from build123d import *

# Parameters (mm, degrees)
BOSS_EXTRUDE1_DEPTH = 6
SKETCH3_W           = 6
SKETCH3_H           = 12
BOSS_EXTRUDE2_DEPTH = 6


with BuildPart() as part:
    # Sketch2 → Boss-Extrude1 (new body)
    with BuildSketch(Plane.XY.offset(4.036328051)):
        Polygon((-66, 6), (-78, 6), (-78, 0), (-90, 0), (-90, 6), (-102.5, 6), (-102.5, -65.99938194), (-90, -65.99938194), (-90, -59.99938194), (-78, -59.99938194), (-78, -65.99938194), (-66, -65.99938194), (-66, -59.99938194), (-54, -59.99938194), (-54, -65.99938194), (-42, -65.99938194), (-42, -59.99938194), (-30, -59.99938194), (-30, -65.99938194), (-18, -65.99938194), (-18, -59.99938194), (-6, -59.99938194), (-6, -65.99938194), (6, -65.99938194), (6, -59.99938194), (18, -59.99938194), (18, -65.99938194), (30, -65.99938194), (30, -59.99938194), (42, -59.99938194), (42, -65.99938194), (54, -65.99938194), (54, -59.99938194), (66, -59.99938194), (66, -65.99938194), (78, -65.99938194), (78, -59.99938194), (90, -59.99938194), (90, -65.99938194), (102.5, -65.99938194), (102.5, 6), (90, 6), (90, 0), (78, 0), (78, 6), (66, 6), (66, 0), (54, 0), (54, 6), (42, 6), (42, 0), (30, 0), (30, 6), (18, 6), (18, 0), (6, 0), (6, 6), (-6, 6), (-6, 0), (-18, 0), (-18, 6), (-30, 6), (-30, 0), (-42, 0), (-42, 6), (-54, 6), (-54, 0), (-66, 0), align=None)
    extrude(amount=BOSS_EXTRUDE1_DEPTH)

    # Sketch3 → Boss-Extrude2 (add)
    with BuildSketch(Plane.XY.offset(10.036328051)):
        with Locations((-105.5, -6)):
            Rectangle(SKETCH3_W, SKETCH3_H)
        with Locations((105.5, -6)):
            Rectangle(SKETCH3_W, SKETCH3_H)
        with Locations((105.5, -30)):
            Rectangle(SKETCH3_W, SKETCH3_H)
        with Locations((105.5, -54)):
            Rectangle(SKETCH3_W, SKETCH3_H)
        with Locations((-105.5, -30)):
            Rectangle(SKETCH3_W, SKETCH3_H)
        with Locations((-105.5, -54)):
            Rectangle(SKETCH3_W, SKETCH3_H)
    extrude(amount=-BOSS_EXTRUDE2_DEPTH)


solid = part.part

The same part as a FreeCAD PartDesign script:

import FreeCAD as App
import Part
import Sketcher
Q = App.Units.Quantity

doc = App.newDocument("Part")
body = doc.addObject("PartDesign::Body", "Body")

# Sketch on XY plane
sketch1 = body.newObject("Sketcher::SketchObject", "Sketch")
sketch1.AttachmentSupport = (doc.getObject("XY_Plane"), [""])
sketch1.MapMode = "FlatFace"
sketch1.AttachmentOffset = App.Placement(App.Vector(0, 0, 4.036328), App.Rotation())
sketch1.addGeometry([
    Part.LineSegment(App.Vector(-66, 6, 0), App.Vector(-78, 6, 0)),  # 0
    Part.LineSegment(App.Vector(-78, 6, 0), App.Vector(-78, 0, 0)),  # 1
    Part.LineSegment(App.Vector(-78, 0, 0), App.Vector(-90, 0, 0)),  # 2
    Part.LineSegment(App.Vector(-90, 0, 0), App.Vector(-90, 6, 0)),  # 3
    Part.LineSegment(App.Vector(-90, 6, 0), App.Vector(-102, 6, 0)),  # 4
    Part.LineSegment(App.Vector(-102, 6, 0), App.Vector(-102, -66, 0)),  # 5
    Part.LineSegment(App.Vector(-102, -66, 0), App.Vector(-90, -66, 0)),  # 6
    Part.LineSegment(App.Vector(-90, -66, 0), App.Vector(-90, -60, 0)),  # 7
    Part.LineSegment(App.Vector(-90, -60, 0), App.Vector(-78, -60, 0)),  # 8
    Part.LineSegment(App.Vector(-78, -60, 0), App.Vector(-78, -66, 0)),  # 9
    Part.LineSegment(App.Vector(-78, -66, 0), App.Vector(-66, -66, 0)),  # 10
    Part.LineSegment(App.Vector(-66, -66, 0), App.Vector(-66, -60, 0)),  # 11
    Part.LineSegment(App.Vector(-66, -60, 0), App.Vector(-54, -60, 0)),  # 12
    Part.LineSegment(App.Vector(-54, -60, 0), App.Vector(-54, -66, 0)),  # 13
    Part.LineSegment(App.Vector(-54, -66, 0), App.Vector(-42, -66, 0)),  # 14
    Part.LineSegment(App.Vector(-42, -66, 0), App.Vector(-42, -60, 0)),  # 15
    Part.LineSegment(App.Vector(-42, -60, 0), App.Vector(-30, -60, 0)),  # 16
    Part.LineSegment(App.Vector(-30, -60, 0), App.Vector(-30, -66, 0)),  # 17
    Part.LineSegment(App.Vector(-30, -66, 0), App.Vector(-18, -66, 0)),  # 18
    Part.LineSegment(App.Vector(-18, -66, 0), App.Vector(-18, -60, 0)),  # 19
    Part.LineSegment(App.Vector(-18, -60, 0), App.Vector(-6, -60, 0)),  # 20
    Part.LineSegment(App.Vector(-6, -60, 0), App.Vector(-6, -66, 0)),  # 21
    Part.LineSegment(App.Vector(-6, -66, 0), App.Vector(6, -66, 0)),  # 22
    Part.LineSegment(App.Vector(6, -66, 0), App.Vector(6, -60, 0)),  # 23
    Part.LineSegment(App.Vector(6, -60, 0), App.Vector(18, -60, 0)),  # 24
    Part.LineSegment(App.Vector(18, -60, 0), App.Vector(18, -66, 0)),  # 25
    Part.LineSegment(App.Vector(18, -66, 0), App.Vector(30, -66, 0)),  # 26
    Part.LineSegment(App.Vector(30, -66, 0), App.Vector(30, -60, 0)),  # 27
    Part.LineSegment(App.Vector(30, -60, 0), App.Vector(42, -60, 0)),  # 28
    Part.LineSegment(App.Vector(42, -60, 0), App.Vector(42, -66, 0)),  # 29
    Part.LineSegment(App.Vector(42, -66, 0), App.Vector(54, -66, 0)),  # 30
    Part.LineSegment(App.Vector(54, -66, 0), App.Vector(54, -60, 0)),  # 31
    Part.LineSegment(App.Vector(54, -60, 0), App.Vector(66, -60, 0)),  # 32
    Part.LineSegment(App.Vector(66, -60, 0), App.Vector(66, -66, 0)),  # 33
    Part.LineSegment(App.Vector(66, -66, 0), App.Vector(78, -66, 0)),  # 34
    Part.LineSegment(App.Vector(78, -66, 0), App.Vector(78, -60, 0)),  # 35
    Part.LineSegment(App.Vector(78, -60, 0), App.Vector(90, -60, 0)),  # 36
    Part.LineSegment(App.Vector(90, -60, 0), App.Vector(90, -66, 0)),  # 37
    Part.LineSegment(App.Vector(90, -66, 0), App.Vector(102, -66, 0)),  # 38
    Part.LineSegment(App.Vector(102, -66, 0), App.Vector(102, 6, 0)),  # 39
    Part.LineSegment(App.Vector(102, 6, 0), App.Vector(90, 6, 0)),  # 40
    Part.LineSegment(App.Vector(90, 6, 0), App.Vector(90, 0, 0)),  # 41
    Part.LineSegment(App.Vector(90, 0, 0), App.Vector(78, 0, 0)),  # 42
    Part.LineSegment(App.Vector(78, 0, 0), App.Vector(78, 6, 0)),  # 43
    Part.LineSegment(App.Vector(78, 6, 0), App.Vector(66, 6, 0)),  # 44
    Part.LineSegment(App.Vector(66, 6, 0), App.Vector(66, 0, 0)),  # 45
    Part.LineSegment(App.Vector(66, 0, 0), App.Vector(54, 0, 0)),  # 46
    Part.LineSegment(App.Vector(54, 0, 0), App.Vector(54, 6, 0)),  # 47
    Part.LineSegment(App.Vector(54, 6, 0), App.Vector(42, 6, 0)),  # 48
    Part.LineSegment(App.Vector(42, 6, 0), App.Vector(42, 0, 0)),  # 49
    Part.LineSegment(App.Vector(42, 0, 0), App.Vector(30, 0, 0)),  # 50
    Part.LineSegment(App.Vector(30, 0, 0), App.Vector(30, 6, 0)),  # 51
    Part.LineSegment(App.Vector(30, 6, 0), App.Vector(18, 6, 0)),  # 52
    Part.LineSegment(App.Vector(18, 6, 0), App.Vector(18, 0, 0)),  # 53
    Part.LineSegment(App.Vector(18, 0, 0), App.Vector(6, 0, 0)),  # 54
    Part.LineSegment(App.Vector(6, 0, 0), App.Vector(6, 6, 0)),  # 55
    Part.LineSegment(App.Vector(6, 6, 0), App.Vector(-6, 6, 0)),  # 56
    Part.LineSegment(App.Vector(-6, 6, 0), App.Vector(-6, 0, 0)),  # 57
    Part.LineSegment(App.Vector(-6, 0, 0), App.Vector(-18, 0, 0)),  # 58
    Part.LineSegment(App.Vector(-18, 0, 0), App.Vector(-18, 6, 0)),  # 59
    Part.LineSegment(App.Vector(-18, 6, 0), App.Vector(-30, 6, 0)),  # 60
    Part.LineSegment(App.Vector(-30, 6, 0), App.Vector(-30, 0, 0)),  # 61
    Part.LineSegment(App.Vector(-30, 0, 0), App.Vector(-42, 0, 0)),  # 62
    Part.LineSegment(App.Vector(-42, 0, 0), App.Vector(-42, 6, 0)),  # 63
    Part.LineSegment(App.Vector(-42, 6, 0), App.Vector(-54, 6, 0)),  # 64
    Part.LineSegment(App.Vector(-54, 6, 0), App.Vector(-54, 0, 0)),  # 65
    Part.LineSegment(App.Vector(-54, 0, 0), App.Vector(-66, 0, 0)),  # 66
    Part.LineSegment(App.Vector(-66, 0, 0), App.Vector(-66, 6, 0)),  # 67
], False)
sketch1.addConstraint([
    Sketcher.Constraint("Coincident", 0, 2, 1, 1),
    Sketcher.Constraint("Coincident", 1, 2, 2, 1),
    Sketcher.Constraint("Coincident", 2, 2, 3, 1),
    Sketcher.Constraint("Coincident", 3, 2, 4, 1),
    Sketcher.Constraint("Coincident", 4, 2, 5, 1),
    Sketcher.Constraint("Coincident", 5, 2, 6, 1),
    Sketcher.Constraint("Coincident", 6, 2, 7, 1),
    Sketcher.Constraint("Coincident", 7, 2, 8, 1),
    Sketcher.Constraint("Coincident", 8, 2, 9, 1),
    Sketcher.Constraint("Coincident", 9, 2, 10, 1),
    Sketcher.Constraint("Coincident", 10, 2, 11, 1),
    Sketcher.Constraint("Coincident", 11, 2, 12, 1),
    Sketcher.Constraint("Coincident", 12, 2, 13, 1),
    Sketcher.Constraint("Coincident", 13, 2, 14, 1),
    Sketcher.Constraint("Coincident", 14, 2, 15, 1),
    Sketcher.Constraint("Coincident", 15, 2, 16, 1),
    Sketcher.Constraint("Coincident", 16, 2, 17, 1),
    Sketcher.Constraint("Coincident", 17, 2, 18, 1),
    Sketcher.Constraint("Coincident", 18, 2, 19, 1),
    Sketcher.Constraint("Coincident", 19, 2, 20, 1),
    Sketcher.Constraint("Coincident", 20, 2, 21, 1),
    Sketcher.Constraint("Coincident", 21, 2, 22, 1),
    Sketcher.Constraint("Coincident", 22, 2, 23, 1),
    Sketcher.Constraint("Coincident", 23, 2, 24, 1),
    Sketcher.Constraint("Coincident", 24, 2, 25, 1),
    Sketcher.Constraint("Coincident", 25, 2, 26, 1),
    Sketcher.Constraint("Coincident", 26, 2, 27, 1),
    Sketcher.Constraint("Coincident", 27, 2, 28, 1),
    Sketcher.Constraint("Coincident", 28, 2, 29, 1),
    Sketcher.Constraint("Coincident", 29, 2, 30, 1),
    Sketcher.Constraint("Coincident", 30, 2, 31, 1),
    Sketcher.Constraint("Coincident", 31, 2, 32, 1),
    Sketcher.Constraint("Coincident", 32, 2, 33, 1),
    Sketcher.Constraint("Coincident", 33, 2, 34, 1),
    Sketcher.Constraint("Coincident", 34, 2, 35, 1),
    Sketcher.Constraint("Coincident", 35, 2, 36, 1),
    Sketcher.Constraint("Coincident", 36, 2, 37, 1),
    Sketcher.Constraint("Coincident", 37, 2, 38, 1),
    Sketcher.Constraint("Coincident", 38, 2, 39, 1),
    Sketcher.Constraint("Coincident", 39, 2, 40, 1),
    Sketcher.Constraint("Coincident", 40, 2, 41, 1),
    Sketcher.Constraint("Coincident", 41, 2, 42, 1),
    Sketcher.Constraint("Coincident", 42, 2, 43, 1),
    Sketcher.Constraint("Coincident", 43, 2, 44, 1),
    Sketcher.Constraint("Coincident", 44, 2, 45, 1),
    Sketcher.Constraint("Coincident", 45, 2, 46, 1),
    Sketcher.Constraint("Coincident", 46, 2, 47, 1),
    Sketcher.Constraint("Coincident", 47, 2, 48, 1),
    Sketcher.Constraint("Coincident", 48, 2, 49, 1),
    Sketcher.Constraint("Coincident", 49, 2, 50, 1),
    Sketcher.Constraint("Coincident", 50, 2, 51, 1),
    Sketcher.Constraint("Coincident", 51, 2, 52, 1),
    Sketcher.Constraint("Coincident", 52, 2, 53, 1),
    Sketcher.Constraint("Coincident", 53, 2, 54, 1),
    Sketcher.Constraint("Coincident", 54, 2, 55, 1),
    Sketcher.Constraint("Coincident", 55, 2, 56, 1),
    Sketcher.Constraint("Coincident", 56, 2, 57, 1),
    Sketcher.Constraint("Coincident", 57, 2, 58, 1),
    Sketcher.Constraint("Coincident", 58, 2, 59, 1),
    Sketcher.Constraint("Coincident", 59, 2, 60, 1),
    Sketcher.Constraint("Coincident", 60, 2, 61, 1),
    Sketcher.Constraint("Coincident", 61, 2, 62, 1),
    Sketcher.Constraint("Coincident", 62, 2, 63, 1),
    Sketcher.Constraint("Coincident", 63, 2, 64, 1),
    Sketcher.Constraint("Coincident", 64, 2, 65, 1),
    Sketcher.Constraint("Coincident", 65, 2, 66, 1),
    Sketcher.Constraint("Coincident", 66, 2, 67, 1),
    Sketcher.Constraint("Coincident", 67, 2, 0, 1),
    Sketcher.Constraint("Horizontal", 0),
    Sketcher.Constraint("Vertical", 1),
    Sketcher.Constraint("Horizontal", 2),
    Sketcher.Constraint("Vertical", 3),
    Sketcher.Constraint("Horizontal", 4),
    Sketcher.Constraint("Vertical", 5),
    Sketcher.Constraint("Horizontal", 6),
    Sketcher.Constraint("Vertical", 7),
    Sketcher.Constraint("Horizontal", 8),
    Sketcher.Constraint("Vertical", 9),
    Sketcher.Constraint("Horizontal", 10),
    Sketcher.Constraint("Vertical", 11),
    Sketcher.Constraint("Horizontal", 12),
    Sketcher.Constraint("Vertical", 13),
    Sketcher.Constraint("Horizontal", 14),
    Sketcher.Constraint("Vertical", 15),
    Sketcher.Constraint("Horizontal", 16),
    Sketcher.Constraint("Vertical", 17),
    Sketcher.Constraint("Horizontal", 18),
    Sketcher.Constraint("Vertical", 19),
    Sketcher.Constraint("Horizontal", 20),
    Sketcher.Constraint("Vertical", 21),
    Sketcher.Constraint("Horizontal", 22),
    Sketcher.Constraint("Vertical", 23),
    Sketcher.Constraint("Horizontal", 24),
    Sketcher.Constraint("Vertical", 25),
    Sketcher.Constraint("Horizontal", 26),
    Sketcher.Constraint("Vertical", 27),
    Sketcher.Constraint("Horizontal", 28),
    Sketcher.Constraint("Vertical", 29),
    Sketcher.Constraint("Horizontal", 30),
    Sketcher.Constraint("Vertical", 31),
    Sketcher.Constraint("Horizontal", 32),
    Sketcher.Constraint("Vertical", 33),
    Sketcher.Constraint("Horizontal", 34),
    Sketcher.Constraint("Vertical", 35),
    Sketcher.Constraint("Horizontal", 36),
    Sketcher.Constraint("Vertical", 37),
    Sketcher.Constraint("Horizontal", 38),
    Sketcher.Constraint("Vertical", 39),
    Sketcher.Constraint("Horizontal", 40),
    Sketcher.Constraint("Vertical", 41),
    Sketcher.Constraint("Horizontal", 42),
    Sketcher.Constraint("Vertical", 43),
    Sketcher.Constraint("Horizontal", 44),
    Sketcher.Constraint("Vertical", 45),
    Sketcher.Constraint("Horizontal", 46),
    Sketcher.Constraint("Vertical", 47),
    Sketcher.Constraint("Horizontal", 48),
    Sketcher.Constraint("Vertical", 49),
    Sketcher.Constraint("Horizontal", 50),
    Sketcher.Constraint("Vertical", 51),
    Sketcher.Constraint("Horizontal", 52),
    Sketcher.Constraint("Vertical", 53),
    Sketcher.Constraint("Horizontal", 54),
    Sketcher.Constraint("Vertical", 55),
    Sketcher.Constraint("Horizontal", 56),
    Sketcher.Constraint("Vertical", 57),
    Sketcher.Constraint("Horizontal", 58),
    Sketcher.Constraint("Vertical", 59),
    Sketcher.Constraint("Horizontal", 60),
    Sketcher.Constraint("Vertical", 61),
    Sketcher.Constraint("Horizontal", 62),
    Sketcher.Constraint("Vertical", 63),
    Sketcher.Constraint("Horizontal", 64),
    Sketcher.Constraint("Vertical", 65),
    Sketcher.Constraint("Horizontal", 66),
    Sketcher.Constraint("Vertical", 67),
    Sketcher.Constraint("Symmetric", 2, 2, 41, 2, -1, 1),
    Sketcher.Constraint("Symmetric", 54, 2, 57, 2, -1, 1),
    Sketcher.Constraint("Symmetric", 50, 2, 61, 2, -1, 1),
    Sketcher.Constraint("Symmetric", 46, 2, 65, 2, -1, 1),
    Sketcher.Constraint("Symmetric", 20, 2, 23, 2, -2),
    Sketcher.Constraint("Symmetric", 18, 2, 25, 2, -2),
    Sketcher.Constraint("Symmetric", 16, 2, 27, 2, -2),
    Sketcher.Constraint("Symmetric", 14, 2, 29, 2, -2),
    Sketcher.Constraint("Symmetric", 12, 2, 31, 2, -2),
    Sketcher.Constraint("Symmetric", 10, 2, 33, 2, -2),
    Sketcher.Constraint("Symmetric", 8, 2, 35, 2, -2),
    Sketcher.Constraint("Symmetric", 6, 2, 37, 2, -2),
    Sketcher.Constraint("Symmetric", 4, 2, 39, 2, -2),
    Sketcher.Constraint("Symmetric", 1, 2, 42, 2, -2),
    Sketcher.Constraint("Symmetric", 53, 2, 58, 2, -2),
    Sketcher.Constraint("Symmetric", 49, 2, 62, 2, -2),
    Sketcher.Constraint("Symmetric", 45, 2, 66, 2, -2),
    Sketcher.Constraint("Horizontal", 0, 2, 3, 2),
    Sketcher.Constraint("Horizontal", 6, 2, 9, 2),
    Sketcher.Constraint("Horizontal", 8, 2, 11, 2),
    Sketcher.Constraint("Horizontal", 10, 2, 13, 2),
    Sketcher.Constraint("Horizontal", 12, 2, 15, 2),
    Sketcher.Constraint("Horizontal", 14, 2, 17, 2),
    Sketcher.Constraint("Horizontal", 16, 2, 19, 2),
    Sketcher.Constraint("Horizontal", 18, 2, 21, 2),
    Sketcher.Constraint("Horizontal", 40, 2, 43, 2),
    Sketcher.Constraint("Horizontal", 44, 2, 47, 2),
    Sketcher.Constraint("Horizontal", 48, 2, 51, 2),
    Sketcher.Constraint("Horizontal", 52, 2, 55, 2),
    Sketcher.Constraint("Horizontal", 56, 2, 59, 2),
    Sketcher.Constraint("Horizontal", 60, 2, 63, 2),
    Sketcher.Constraint("Vertical", 3, 2, 6, 2),
    Sketcher.Constraint("Vertical", 1, 2, 8, 2),
    Sketcher.Constraint("Vertical", 33, 2, 44, 2),
    Sketcher.Constraint("Vertical", 31, 2, 46, 2),
    Sketcher.Constraint("Vertical", 29, 2, 48, 2),
    Sketcher.Constraint("Vertical", 27, 2, 50, 2),
    Sketcher.Constraint("Vertical", 25, 2, 52, 2),
    Sketcher.Constraint("Vertical", 23, 2, 54, 2),
    Sketcher.Constraint("Equal", 0, 2),
    Sketcher.Constraint("Equal", 10, 12),
    Sketcher.Constraint("Equal", 12, 14),
    Sketcher.Constraint("Equal", 14, 16),
    Sketcher.Constraint("Equal", 16, 18),
    Sketcher.Constraint("Equal", 18, 20),
    Sketcher.Constraint("Equal", 20, 22),
    Sketcher.Constraint("Equal", 3, 7),
    Sketcher.Constraint("DistanceX", 0, 2, 0, 1, Q("12 mm")),
    Sketcher.Constraint("DistanceY", 1, 2, 1, 1, Q("6 mm")),
    Sketcher.Constraint("DistanceX", 4, 2, 4, 1, Q("12.5 mm")),
    Sketcher.Constraint("DistanceY", 5, 2, 5, 1, Q("71.999382 mm")),
])
pad1 = body.newObject("PartDesign::Pad", "Pad")
pad1.Profile = sketch1
pad1.Length = 6

# Sketch on XY plane
sketch2 = body.newObject("Sketcher::SketchObject", "Sketch001")
sketch2.AttachmentSupport = (doc.getObject("XY_Plane"), [""])
sketch2.MapMode = "FlatFace"
sketch2.AttachmentOffset = App.Placement(App.Vector(0, 0, 10.036328), App.Rotation())
sketch2.addGeometry([
    Part.LineSegment(App.Vector(-108, 0, 0), App.Vector(-108, -12, 0)),  # 0
    Part.LineSegment(App.Vector(-108, -12, 0), App.Vector(-102, -12, 0)),  # 1
    Part.LineSegment(App.Vector(-102, -12, 0), App.Vector(-102, 0, 0)),  # 2
    Part.LineSegment(App.Vector(-102, 0, 0), App.Vector(-108, 0, 0)),  # 3
    Part.LineSegment(App.Vector(102, 0, 0), App.Vector(102, -12, 0)),  # 4
    Part.LineSegment(App.Vector(102, -12, 0), App.Vector(108, -12, 0)),  # 5
    Part.LineSegment(App.Vector(108, -12, 0), App.Vector(108, 0, 0)),  # 6
    Part.LineSegment(App.Vector(108, 0, 0), App.Vector(102, 0, 0)),  # 7
    Part.LineSegment(App.Vector(102, -24, 0), App.Vector(102, -36, 0)),  # 8
    Part.LineSegment(App.Vector(102, -36, 0), App.Vector(108, -36, 0)),  # 9
    Part.LineSegment(App.Vector(108, -36, 0), App.Vector(108, -24, 0)),  # 10
    Part.LineSegment(App.Vector(108, -24, 0), App.Vector(102, -24, 0)),  # 11
    Part.LineSegment(App.Vector(102, -48, 0), App.Vector(102, -60, 0)),  # 12
    Part.LineSegment(App.Vector(102, -60, 0), App.Vector(108, -60, 0)),  # 13
    Part.LineSegment(App.Vector(108, -60, 0), App.Vector(108, -48, 0)),  # 14
    Part.LineSegment(App.Vector(108, -48, 0), App.Vector(102, -48, 0)),  # 15
    Part.LineSegment(App.Vector(-108, -24, 0), App.Vector(-108, -36, 0)),  # 16
    Part.LineSegment(App.Vector(-108, -36, 0), App.Vector(-102, -36, 0)),  # 17
    Part.LineSegment(App.Vector(-102, -36, 0), App.Vector(-102, -24, 0)),  # 18
    Part.LineSegment(App.Vector(-102, -24, 0), App.Vector(-108, -24, 0)),  # 19
    Part.LineSegment(App.Vector(-108, -48, 0), App.Vector(-108, -60, 0)),  # 20
    Part.LineSegment(App.Vector(-108, -60, 0), App.Vector(-102, -60, 0)),  # 21
    Part.LineSegment(App.Vector(-102, -60, 0), App.Vector(-102, -48, 0)),  # 22
    Part.LineSegment(App.Vector(-102, -48, 0), App.Vector(-108, -48, 0)),  # 23
], False)
sketch2.addConstraint([
    Sketcher.Constraint("Coincident", 0, 2, 1, 1),
    Sketcher.Constraint("Coincident", 1, 2, 2, 1),
    Sketcher.Constraint("Coincident", 2, 2, 3, 1),
    Sketcher.Constraint("Coincident", 3, 2, 0, 1),
    Sketcher.Constraint("Coincident", 4, 2, 5, 1),
    Sketcher.Constraint("Coincident", 5, 2, 6, 1),
    Sketcher.Constraint("Coincident", 6, 2, 7, 1),
    Sketcher.Constraint("Coincident", 7, 2, 4, 1),
    Sketcher.Constraint("Coincident", 8, 2, 9, 1),
    Sketcher.Constraint("Coincident", 9, 2, 10, 1),
    Sketcher.Constraint("Coincident", 10, 2, 11, 1),
    Sketcher.Constraint("Coincident", 11, 2, 8, 1),
    Sketcher.Constraint("Coincident", 12, 2, 13, 1),
    Sketcher.Constraint("Coincident", 13, 2, 14, 1),
    Sketcher.Constraint("Coincident", 14, 2, 15, 1),
    Sketcher.Constraint("Coincident", 15, 2, 12, 1),
    Sketcher.Constraint("Coincident", 16, 2, 17, 1),
    Sketcher.Constraint("Coincident", 17, 2, 18, 1),
    Sketcher.Constraint("Coincident", 18, 2, 19, 1),
    Sketcher.Constraint("Coincident", 19, 2, 16, 1),
    Sketcher.Constraint("Coincident", 20, 2, 21, 1),
    Sketcher.Constraint("Coincident", 21, 2, 22, 1),
    Sketcher.Constraint("Coincident", 22, 2, 23, 1),
    Sketcher.Constraint("Coincident", 23, 2, 20, 1),
    Sketcher.Constraint("Vertical", 0),
    Sketcher.Constraint("Horizontal", 1),
    Sketcher.Constraint("Vertical", 2),
    Sketcher.Constraint("Horizontal", 3),
    Sketcher.Constraint("Vertical", 4),
    Sketcher.Constraint("Horizontal", 5),
    Sketcher.Constraint("Vertical", 6),
    Sketcher.Constraint("Horizontal", 7),
    Sketcher.Constraint("Vertical", 8),
    Sketcher.Constraint("Horizontal", 9),
    Sketcher.Constraint("Vertical", 10),
    Sketcher.Constraint("Horizontal", 11),
    Sketcher.Constraint("Vertical", 12),
    Sketcher.Constraint("Horizontal", 13),
    Sketcher.Constraint("Vertical", 14),
    Sketcher.Constraint("Horizontal", 15),
    Sketcher.Constraint("Vertical", 16),
    Sketcher.Constraint("Horizontal", 17),
    Sketcher.Constraint("Vertical", 18),
    Sketcher.Constraint("Horizontal", 19),
    Sketcher.Constraint("Vertical", 20),
    Sketcher.Constraint("Horizontal", 21),
    Sketcher.Constraint("Vertical", 22),
    Sketcher.Constraint("Horizontal", 23),
    Sketcher.Constraint("Symmetric", 3, 2, 6, 2, -1, 1),
    Sketcher.Constraint("Symmetric", 1, 2, 4, 2, -2),
    Sketcher.Constraint("Symmetric", 9, 2, 16, 2, -2),
    Sketcher.Constraint("Symmetric", 11, 2, 18, 2, -2),
    Sketcher.Constraint("Symmetric", 13, 2, 20, 2, -2),
    Sketcher.Constraint("Symmetric", 15, 2, 22, 2, -2),
    Sketcher.Constraint("PointOnObject", 2, 2, -1),
    Sketcher.Constraint("Vertical", 7, 2, 8, 2),
    Sketcher.Constraint("Vertical", 6, 2, 9, 2),
    Sketcher.Constraint("Vertical", 11, 2, 12, 2),
    Sketcher.Constraint("Vertical", 10, 2, 13, 2),
    Sketcher.Constraint("Equal", 6, 8),
    Sketcher.Constraint("Equal", 10, 12),
    Sketcher.Constraint("DistanceX", 1, 1, 1, 2, Q("6 mm")),
    Sketcher.Constraint("DistanceY", 0, 2, 0, 1, Q("12 mm")),
    Sketcher.Constraint("DistanceY", 8, 2, -1, 1, Q("36 mm")),
    Sketcher.Constraint("DistanceY", 12, 2, -1, 1, Q("60 mm")),
    Sketcher.Constraint("DistanceX", 1, 2, 4, 2, Q("205 mm")),
])
pad2 = body.newObject("PartDesign::Pad", "Pad001")
pad2.Profile = sketch2
pad2.Length = 6
pad2.Reversed = True

doc.recompute()
